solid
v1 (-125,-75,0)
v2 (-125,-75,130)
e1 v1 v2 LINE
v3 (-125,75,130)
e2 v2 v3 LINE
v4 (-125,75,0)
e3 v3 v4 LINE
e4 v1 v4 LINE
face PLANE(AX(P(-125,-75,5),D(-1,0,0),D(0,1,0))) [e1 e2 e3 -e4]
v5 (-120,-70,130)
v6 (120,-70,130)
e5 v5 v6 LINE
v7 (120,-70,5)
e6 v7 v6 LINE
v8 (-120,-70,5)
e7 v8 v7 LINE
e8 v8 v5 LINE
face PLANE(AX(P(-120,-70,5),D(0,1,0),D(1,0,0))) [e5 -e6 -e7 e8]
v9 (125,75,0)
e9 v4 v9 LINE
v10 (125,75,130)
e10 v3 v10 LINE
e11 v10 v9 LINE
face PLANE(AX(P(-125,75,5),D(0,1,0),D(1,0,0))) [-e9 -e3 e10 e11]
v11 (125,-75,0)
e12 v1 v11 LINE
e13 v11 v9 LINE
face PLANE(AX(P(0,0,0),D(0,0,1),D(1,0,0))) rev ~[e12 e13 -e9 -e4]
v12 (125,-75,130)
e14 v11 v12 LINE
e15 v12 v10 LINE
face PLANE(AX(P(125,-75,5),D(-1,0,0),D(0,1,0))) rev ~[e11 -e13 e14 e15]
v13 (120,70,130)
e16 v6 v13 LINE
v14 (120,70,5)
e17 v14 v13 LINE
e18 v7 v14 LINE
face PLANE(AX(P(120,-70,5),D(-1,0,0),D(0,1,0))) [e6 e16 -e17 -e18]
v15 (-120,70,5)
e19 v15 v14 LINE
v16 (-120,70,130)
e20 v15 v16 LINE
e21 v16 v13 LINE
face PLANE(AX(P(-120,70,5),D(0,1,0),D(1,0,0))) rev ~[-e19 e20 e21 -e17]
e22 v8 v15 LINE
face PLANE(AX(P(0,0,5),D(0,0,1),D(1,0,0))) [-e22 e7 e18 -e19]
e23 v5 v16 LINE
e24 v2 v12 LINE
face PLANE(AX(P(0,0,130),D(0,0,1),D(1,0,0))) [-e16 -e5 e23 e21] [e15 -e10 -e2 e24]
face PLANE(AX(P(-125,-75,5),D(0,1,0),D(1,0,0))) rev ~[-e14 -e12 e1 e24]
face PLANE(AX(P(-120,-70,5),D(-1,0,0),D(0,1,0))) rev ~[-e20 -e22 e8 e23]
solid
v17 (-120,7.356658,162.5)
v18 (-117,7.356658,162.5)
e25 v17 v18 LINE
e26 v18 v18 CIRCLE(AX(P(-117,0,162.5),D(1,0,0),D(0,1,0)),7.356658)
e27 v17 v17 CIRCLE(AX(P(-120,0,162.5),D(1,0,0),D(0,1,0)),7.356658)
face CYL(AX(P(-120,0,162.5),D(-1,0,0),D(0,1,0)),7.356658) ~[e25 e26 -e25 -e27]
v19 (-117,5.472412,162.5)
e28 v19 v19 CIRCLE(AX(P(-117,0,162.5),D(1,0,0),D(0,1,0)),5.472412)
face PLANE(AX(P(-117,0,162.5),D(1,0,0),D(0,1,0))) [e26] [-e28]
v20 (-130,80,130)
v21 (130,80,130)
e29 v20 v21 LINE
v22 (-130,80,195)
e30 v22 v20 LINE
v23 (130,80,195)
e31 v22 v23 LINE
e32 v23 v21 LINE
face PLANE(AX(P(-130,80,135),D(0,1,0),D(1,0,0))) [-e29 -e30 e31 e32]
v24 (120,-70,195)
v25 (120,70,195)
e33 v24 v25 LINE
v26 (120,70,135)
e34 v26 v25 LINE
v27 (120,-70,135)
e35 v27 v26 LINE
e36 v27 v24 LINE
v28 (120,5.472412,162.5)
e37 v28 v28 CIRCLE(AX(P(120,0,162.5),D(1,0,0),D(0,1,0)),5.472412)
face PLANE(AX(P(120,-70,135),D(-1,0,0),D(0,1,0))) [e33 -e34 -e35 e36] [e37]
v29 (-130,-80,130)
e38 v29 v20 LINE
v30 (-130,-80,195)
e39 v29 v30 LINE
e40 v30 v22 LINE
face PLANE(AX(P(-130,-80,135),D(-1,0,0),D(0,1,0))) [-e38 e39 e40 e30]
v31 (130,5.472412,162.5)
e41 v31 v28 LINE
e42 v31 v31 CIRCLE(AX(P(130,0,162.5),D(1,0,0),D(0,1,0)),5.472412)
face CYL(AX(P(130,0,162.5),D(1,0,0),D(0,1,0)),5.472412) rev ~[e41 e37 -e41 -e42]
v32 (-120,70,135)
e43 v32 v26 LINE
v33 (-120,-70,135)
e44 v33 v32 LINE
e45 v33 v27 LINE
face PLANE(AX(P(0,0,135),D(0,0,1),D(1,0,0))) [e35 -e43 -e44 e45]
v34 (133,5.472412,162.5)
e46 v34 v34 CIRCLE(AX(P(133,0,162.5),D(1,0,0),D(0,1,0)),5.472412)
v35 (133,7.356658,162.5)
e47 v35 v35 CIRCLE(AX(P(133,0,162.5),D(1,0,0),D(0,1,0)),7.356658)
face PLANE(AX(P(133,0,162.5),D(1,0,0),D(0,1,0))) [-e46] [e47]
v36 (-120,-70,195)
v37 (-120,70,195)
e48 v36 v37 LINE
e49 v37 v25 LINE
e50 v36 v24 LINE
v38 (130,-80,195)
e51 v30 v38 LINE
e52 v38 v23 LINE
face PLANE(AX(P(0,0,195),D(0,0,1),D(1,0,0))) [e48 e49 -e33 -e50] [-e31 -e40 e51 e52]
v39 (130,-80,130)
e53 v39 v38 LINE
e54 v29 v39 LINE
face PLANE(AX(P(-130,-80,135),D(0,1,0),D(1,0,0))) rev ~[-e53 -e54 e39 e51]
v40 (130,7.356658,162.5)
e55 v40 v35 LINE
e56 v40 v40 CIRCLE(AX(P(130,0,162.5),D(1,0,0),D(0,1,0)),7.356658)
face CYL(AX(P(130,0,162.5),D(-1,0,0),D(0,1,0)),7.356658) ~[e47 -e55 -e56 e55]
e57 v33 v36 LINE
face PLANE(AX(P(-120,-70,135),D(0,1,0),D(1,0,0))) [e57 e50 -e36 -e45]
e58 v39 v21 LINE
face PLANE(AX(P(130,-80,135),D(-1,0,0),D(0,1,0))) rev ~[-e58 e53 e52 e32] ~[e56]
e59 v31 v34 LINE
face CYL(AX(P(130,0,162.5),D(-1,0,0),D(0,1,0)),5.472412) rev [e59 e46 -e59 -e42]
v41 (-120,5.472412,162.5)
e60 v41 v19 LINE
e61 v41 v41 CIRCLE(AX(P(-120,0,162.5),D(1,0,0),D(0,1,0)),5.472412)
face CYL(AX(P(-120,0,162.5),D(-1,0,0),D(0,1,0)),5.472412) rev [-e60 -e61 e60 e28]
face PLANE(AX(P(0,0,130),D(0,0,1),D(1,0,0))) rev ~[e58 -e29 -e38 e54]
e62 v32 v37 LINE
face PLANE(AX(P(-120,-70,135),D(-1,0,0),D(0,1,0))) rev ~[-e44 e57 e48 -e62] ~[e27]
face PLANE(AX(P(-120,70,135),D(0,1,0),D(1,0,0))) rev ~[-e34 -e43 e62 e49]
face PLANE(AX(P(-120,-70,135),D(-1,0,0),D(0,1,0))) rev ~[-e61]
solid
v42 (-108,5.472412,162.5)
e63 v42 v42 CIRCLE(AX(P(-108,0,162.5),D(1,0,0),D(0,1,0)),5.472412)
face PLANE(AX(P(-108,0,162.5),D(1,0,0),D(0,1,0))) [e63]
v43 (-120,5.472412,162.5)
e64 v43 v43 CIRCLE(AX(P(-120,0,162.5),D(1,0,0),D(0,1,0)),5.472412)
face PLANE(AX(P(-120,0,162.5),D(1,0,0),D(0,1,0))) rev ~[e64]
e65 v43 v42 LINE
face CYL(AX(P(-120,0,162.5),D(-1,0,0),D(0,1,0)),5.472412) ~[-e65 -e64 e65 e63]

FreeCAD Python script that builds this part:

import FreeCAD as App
import Part
import Sketcher
from FreeCAD import Vector
Q = App.Units.Quantity

doc = App.newDocument("Part")
body = doc.addObject("PartDesign::Body", "Body")

# Sketch on XY plane
sketch1 = body.newObject("Sketcher::SketchObject", "Sketch")
sketch1.AttachmentSupport = (doc.getObject("XY_Plane"), [""])
sketch1.MapMode = "FlatFace"
sketch1.addGeometry([
    Part.LineSegment(Vector(-125, 75, 0), Vector(-125, -75, 0)),
    Part.LineSegment(Vector(-125, -75, 0), Vector(125, -75, 0)),
    Part.LineSegment(Vector(125, -75, 0), Vector(125, 75, 0)),
    Part.LineSegment(Vector(125, 75, 0), Vector(-125, 75, 0)),
], False)
sketch1.addConstraint([
    Sketcher.Constraint("Coincident", 0, 2, 1, 1),
    Sketcher.Constraint("Coincident", 1, 2, 2, 1),
    Sketcher.Constraint("Coincident", 2, 2, 3, 1),
    Sketcher.Constraint("Coincident", 3, 2, 0, 1),
    Sketcher.Constraint("Vertical", 0),
    Sketcher.Constraint("Horizontal", 1),
    Sketcher.Constraint("Vertical", 2),
    Sketcher.Constraint("Horizontal", 3),
    Sketcher.Constraint("Symmetric", 0, 2, 2, 2, -1, 1),
    Sketcher.Constraint("DistanceX", 1, 1, 1, 2, Q("250 mm")),
    Sketcher.Constraint("DistanceY", 0, 2, 0, 1, Q("150 mm")),
])
pad1 = body.newObject("PartDesign::Pad", "Pad")
pad1.Profile = sketch1
pad1.Length = 5

# Sketch on XY plane
sketch2 = body.newObject("Sketcher::SketchObject", "Sketch001")
sketch2.AttachmentSupport = (doc.getObject("XY_Plane"), [""])
sketch2.MapMode = "FlatFace"
sketch2.AttachmentOffset = App.Placement(Vector(0, 0, 5), App.Rotation())
sketch2.addGeometry([
    Part.LineSegment(Vector(-125, 75, 0), Vector(-125, -75, 0)),  # 0
    Part.LineSegment(Vector(-125, -75, 0), Vector(125, -75, 0)),  # 1
    Part.LineSegment(Vector(125, -75, 0), Vector(125, 75, 0)),  # 2
    Part.LineSegment(Vector(125, 75, 0), Vector(-125, 75, 0)),  # 3
    Part.LineSegment(Vector(120, -70, 0), Vector(-120, -70, 0)),  # 4
    Part.LineSegment(Vector(-120, -70, 0), Vector(-120, 70, 0)),  # 5
    Part.LineSegment(Vector(-120, 70, 0), Vector(120, 70, 0)),  # 6
    Part.LineSegment(Vector(120, 70, 0), Vector(120, -70, 0)),  # 7
], False)
sketch2.addConstraint([
    Sketcher.Constraint("Coincident", 0, 2, 1, 1),
    Sketcher.Constraint("Coincident", 1, 2, 2, 1),
    Sketcher.Constraint("Coincident", 2, 2, 3, 1),
    Sketcher.Constraint("Coincident", 3, 2, 0, 1),
    Sketcher.Constraint("Coincident", 4, 2, 5, 1),
    Sketcher.Constraint("Coincident", 5, 2, 6, 1),
    Sketcher.Constraint("Coincident", 6, 2, 7, 1),
    Sketcher.Constraint("Coincident", 7, 2, 4, 1),
    Sketcher.Constraint("Vertical", 0),
    Sketcher.Constraint("Horizontal", 1),
    Sketcher.Constraint("Vertical", 2),
    Sketcher.Constraint("Horizontal", 3),
    Sketcher.Constraint("Horizontal", 4),
    Sketcher.Constraint("Vertical", 5),
    Sketcher.Constraint("Horizontal", 6),
    Sketcher.Constraint("Vertical", 7),
    Sketcher.Constraint("Symmetric", 0, 2, 2, 2, -1, 1),
    Sketcher.Constraint("Symmetric", 4, 2, 6, 2, -1, 1),
    Sketcher.Constraint("DistanceX", 1, 1, 1, 2, Q("250 mm")),
    Sketcher.Constraint("DistanceX", 4, 2, 4, 1, Q("240 mm")),
    Sketcher.Constraint("DistanceY", 0, 2, 0, 1, Q("150 mm")),
    Sketcher.Constraint("DistanceY", 5, 1, 5, 2, Q("140 mm")),
])
pad2 = body.newObject("PartDesign::Pad", "Pad001")
pad2.Profile = sketch2
pad2.Length = 125
body2 = doc.addObject("PartDesign::Body", "Body001")

# Sketch on XY plane
sketch3 = body2.newObject("Sketcher::SketchObject", "Sketch002")
sketch3.AttachmentSupport = (doc.getObject("XY_Plane001"), [""])
sketch3.MapMode = "FlatFace"
sketch3.AttachmentOffset = App.Placement(Vector(0, 0, 130), App.Rotation())
sketch3.addGeometry([
    Part.LineSegment(Vector(-130, 80, 0), Vector(-130, -80, 0)),
    Part.LineSegment(Vector(-130, -80, 0), Vector(130, -80, 0)),
    Part.LineSegment(Vector(130, -80, 0), Vector(130, 80, 0)),
    Part.LineSegment(Vector(130, 80, 0), Vector(-130, 80, 0)),
], False)
sketch3.addConstraint([
    Sketcher.Constraint("Coincident", 0, 2, 1, 1),
    Sketcher.Constraint("Coincident", 1, 2, 2, 1),
    Sketcher.Constraint("Coincident", 2, 2, 3, 1),
    Sketcher.Constraint("Coincident", 3, 2, 0, 1),
    Sketcher.Constraint("Vertical", 0),
    Sketcher.Constraint("Horizontal", 1),
    Sketcher.Constraint("Vertical", 2),
    Sketcher.Constraint("Horizontal", 3),
    Sketcher.Constraint("Symmetric", 0, 2, 2, 2, -1, 1),
    Sketcher.Constraint("DistanceX", 1, 1, 1, 2, Q("260 mm")),
    Sketcher.Constraint("DistanceY", 0, 2, 0, 1, Q("160 mm")),
])
pad3 = body2.newObject("PartDesign::Pad", "Pad002")
pad3.Profile = sketch3
pad3.Length = 5

# Sketch on XY plane
sketch4 = body2.newObject("Sketcher::SketchObject", "Sketch003")
sketch4.AttachmentSupport = (doc.getObject("XY_Plane001"), [""])
sketch4.MapMode = "FlatFace"
sketch4.AttachmentOffset = App.Placement(Vector(0, 0, 135), App.Rotation())
sketch4.addGeometry([
    Part.LineSegment(Vector(-130, 80, 0), Vector(-130, -80, 0)),  # 0
    Part.LineSegment(Vector(-130, -80, 0), Vector(130, -80, 0)),  # 1
    Part.LineSegment(Vector(130, -80, 0), Vector(130, 80, 0)),  # 2
    Part.LineSegment(Vector(130, 80, 0), Vector(-130, 80, 0)),  # 3
    Part.LineSegment(Vector(120, -70, 0), Vector(-120, -70, 0)),  # 4
    Part.LineSegment(Vector(-120, -70, 0), Vector(-120, 70, 0)),  # 5
    Part.LineSegment(Vector(-120, 70, 0), Vector(120, 70, 0)),  # 6
    Part.LineSegment(Vector(120, 70, 0), Vector(120, -70, 0)),  # 7
], False)
sketch4.addConstraint([
    Sketcher.Constraint("Coincident", 0, 2, 1, 1),
    Sketcher.Constraint("Coincident", 1, 2, 2, 1),
    Sketcher.Constraint("Coincident", 2, 2, 3, 1),
    Sketcher.Constraint("Coincident", 3, 2, 0, 1),
    Sketcher.Constraint("Coincident", 4, 2, 5, 1),
    Sketcher.Constraint("Coincident", 5, 2, 6, 1),
    Sketcher.Constraint("Coincident", 6, 2, 7, 1),
    Sketcher.Constraint("Coincident", 7, 2, 4, 1),
    Sketcher.Constraint("Vertical", 0),
    Sketcher.Constraint("Horizontal", 1),
    Sketcher.Constraint("Vertical", 2),
    Sketcher.Constraint("Horizontal", 3),
    Sketcher.Constraint("Horizontal", 4),
    Sketcher.Constraint("Vertical", 5),
    Sketcher.Constraint("Horizontal", 6),
    Sketcher.Constraint("Vertical", 7),
    Sketcher.Constraint("Symmetric", 0, 2, 2, 2, -1, 1),
    Sketcher.Constraint("Symmetric", 4, 2, 6, 2, -1, 1),
    Sketcher.Constraint("DistanceX", 1, 1, 1, 2, Q("260 mm")),
    Sketcher.Constraint("DistanceX", 4, 2, 4, 1, Q("240 mm")),
    Sketcher.Constraint("DistanceY", 0, 2, 0, 1, Q("160 mm")),
    Sketcher.Constraint("DistanceY", 5, 1, 5, 2, Q("140 mm")),
])
pad4 = body2.newObject("PartDesign::Pad", "Pad003")
pad4.Profile = sketch4
pad4.Length = 60

# Sketch on YZ plane
sketch5 = body2.newObject("Sketcher::SketchObject", "Sketch004")
sketch5.AttachmentSupport = (doc.getObject("YZ_Plane001"), [""])
sketch5.MapMode = "FlatFace"
sketch5.AttachmentOffset = App.Placement(Vector(0, 0, 130), App.Rotation())
sketch5.addGeometry(Part.Circle(Vector(0, 162, 0), Vector(0, 0, 1), 5), False)
sketch5.addConstraint([
    Sketcher.Constraint("PointOnObject", 0, 3, -2),
    Sketcher.Constraint("DistanceY", -1, 1, 0, 3, Q("162.5 mm")),
    Sketcher.Constraint("Diameter", 0, Q("10.944824 mm")),
])
pocket1 = body2.newObject("PartDesign::Pocket", "Pocket")
pocket1.Profile = sketch5
pocket1.Length = 25

# Sketch on YZ plane
sketch6 = body2.newObject("Sketcher::SketchObject", "Sketch005")
sketch6.AttachmentSupport = (doc.getObject("YZ_Plane001"), [""])
sketch6.MapMode = "FlatFace"
sketch6.AttachmentOffset = App.Placement(Vector(0, 0, 130), App.Rotation())
sketch6.addGeometry([
    Part.Circle(Vector(0, 162, 0), Vector(0, 0, 1), 7),
    Part.Circle(Vector(0, 162, 0), Vector(0, 0, 1), 5),
], False)
sketch6.addConstraint([
    Sketcher.Constraint("Coincident", 1, 3, 0, 3),
    Sketcher.Constraint("PointOnObject", 0, 3, -2),
    Sketcher.Constraint("DistanceY", -1, 1, 0, 3, Q("162.5 mm")),
    Sketcher.Constraint("Diameter", 0, Q("14.713316 mm")),
    Sketcher.Constraint("Diameter", 1, Q("10.944824 mm")),
])
pad5 = body2.newObject("PartDesign::Pad", "Pad004")
pad5.Profile = sketch6
pad5.Length = 3

# Sketch on YZ plane
sketch7 = body2.newObject("Sketcher::SketchObject", "Sketch006")
sketch7.AttachmentSupport = (doc.getObject("YZ_Plane001"), [""])
sketch7.MapMode = "FlatFace"
sketch7.AttachmentOffset = App.Placement(Vector(0, 0, -120), App.Rotation())
sketch7.addGeometry([
    Part.Circle(Vector(0, 162, 0), Vector(0, 0, 1), 7),
    Part.Circle(Vector(0, 162, 0), Vector(0, 0, 1), 5),
], False)
sketch7.addConstraint([
    Sketcher.Constraint("Coincident", 1, 3, 0, 3),
    Sketcher.Constraint("PointOnObject", 0, 3, -2),
    Sketcher.Constraint("DistanceY", -1, 1, 0, 3, Q("162.5 mm")),
    Sketcher.Constraint("Diameter", 0, Q("14.713316 mm")),
    Sketcher.Constraint("Diameter", 1, Q("10.944824 mm")),
])
pad6 = body2.newObject("PartDesign::Pad", "Pad005")
pad6.Profile = sketch7
pad6.Length = 3
body3 = doc.addObject("PartDesign::Body", "Body002")

# Sketch on YZ plane
sketch8 = body3.newObject("Sketcher::SketchObject", "Sketch007")
sketch8.AttachmentSupport = (doc.getObject("YZ_Plane002"), [""])
sketch8.MapMode = "FlatFace"
sketch8.AttachmentOffset = App.Placement(Vector(0, 0, -120), App.Rotation())
sketch8.addGeometry(Part.Circle(Vector(0, 162, 0), Vector(0, 0, 1), 5), False)
sketch8.addConstraint([
    Sketcher.Constraint("PointOnObject", 0, 3, -2),
    Sketcher.Constraint("DistanceY", -1, 1, 0, 3, Q("162.5 mm")),
    Sketcher.Constraint("Diameter", 0, Q("10.944824 mm")),
])
pad7 = body3.newObject("PartDesign::Pad", "Pad006")
pad7.Profile = sketch8
pad7.Length = 12

doc.recompute()
